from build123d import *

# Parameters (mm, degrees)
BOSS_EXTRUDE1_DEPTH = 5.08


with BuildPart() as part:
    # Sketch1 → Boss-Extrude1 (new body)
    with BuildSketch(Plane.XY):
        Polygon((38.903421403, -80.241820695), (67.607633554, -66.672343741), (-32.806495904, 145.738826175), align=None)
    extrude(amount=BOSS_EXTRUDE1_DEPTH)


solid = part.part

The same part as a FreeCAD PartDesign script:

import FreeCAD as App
import Part
import Sketcher

V = App.Vector
Q = App.Units.Quantity


def add_polygon(sketch, points):
    """Adds a closed chain of lines whose ends are joined by coincident constraints."""
    first, n = sketch.GeometryCount, len(points)
    for a, b in zip(points, points[1:] + points[:1]):
        sketch.addGeometry(Part.LineSegment(App.Vector(*a, 0), App.Vector(*b, 0)), False)
    for i in range(n):
        sketch.addConstraint(Sketcher.Constraint("Coincident", first + i, 2, first + (i + 1) % n, 1))

doc = App.newDocument("Part")
body = doc.addObject("PartDesign::Body", "Body")

# Sketch on XY plane
sketch1 = body.newObject("Sketcher::SketchObject", "Sketch")
sketch1.AttachmentSupport = (doc.getObject("XY_Plane"), [""])
sketch1.MapMode = "FlatFace"
add_polygon(sketch1, [(39, -80), (68, -67), (-33, 146)])  # lines 0-2
sketch1.addConstraint([
    Sketcher.Constraint("Perpendicular", 0, 1),
    Sketcher.Constraint("Distance", 0, Q("1.25 in")),
    Sketcher.Constraint("Distance", 1, Q("9.25 in")),
    Sketcher.Constraint("DistanceX", -1, 1, 2, 2, Q("38.903421 mm")),
    Sketcher.Constraint("DistanceY", 2, 2, -1, 1, Q("80.241821 mm")),
    Sketcher.Constraint("DistanceX", 1, 2, 0, 2, Q("100.414129 mm")),
])
pad1 = body.newObject("PartDesign::Pad", "Pad")
pad1.Profile = sketch1
pad1.Length = Q("0.2 in")

doc.recompute()
